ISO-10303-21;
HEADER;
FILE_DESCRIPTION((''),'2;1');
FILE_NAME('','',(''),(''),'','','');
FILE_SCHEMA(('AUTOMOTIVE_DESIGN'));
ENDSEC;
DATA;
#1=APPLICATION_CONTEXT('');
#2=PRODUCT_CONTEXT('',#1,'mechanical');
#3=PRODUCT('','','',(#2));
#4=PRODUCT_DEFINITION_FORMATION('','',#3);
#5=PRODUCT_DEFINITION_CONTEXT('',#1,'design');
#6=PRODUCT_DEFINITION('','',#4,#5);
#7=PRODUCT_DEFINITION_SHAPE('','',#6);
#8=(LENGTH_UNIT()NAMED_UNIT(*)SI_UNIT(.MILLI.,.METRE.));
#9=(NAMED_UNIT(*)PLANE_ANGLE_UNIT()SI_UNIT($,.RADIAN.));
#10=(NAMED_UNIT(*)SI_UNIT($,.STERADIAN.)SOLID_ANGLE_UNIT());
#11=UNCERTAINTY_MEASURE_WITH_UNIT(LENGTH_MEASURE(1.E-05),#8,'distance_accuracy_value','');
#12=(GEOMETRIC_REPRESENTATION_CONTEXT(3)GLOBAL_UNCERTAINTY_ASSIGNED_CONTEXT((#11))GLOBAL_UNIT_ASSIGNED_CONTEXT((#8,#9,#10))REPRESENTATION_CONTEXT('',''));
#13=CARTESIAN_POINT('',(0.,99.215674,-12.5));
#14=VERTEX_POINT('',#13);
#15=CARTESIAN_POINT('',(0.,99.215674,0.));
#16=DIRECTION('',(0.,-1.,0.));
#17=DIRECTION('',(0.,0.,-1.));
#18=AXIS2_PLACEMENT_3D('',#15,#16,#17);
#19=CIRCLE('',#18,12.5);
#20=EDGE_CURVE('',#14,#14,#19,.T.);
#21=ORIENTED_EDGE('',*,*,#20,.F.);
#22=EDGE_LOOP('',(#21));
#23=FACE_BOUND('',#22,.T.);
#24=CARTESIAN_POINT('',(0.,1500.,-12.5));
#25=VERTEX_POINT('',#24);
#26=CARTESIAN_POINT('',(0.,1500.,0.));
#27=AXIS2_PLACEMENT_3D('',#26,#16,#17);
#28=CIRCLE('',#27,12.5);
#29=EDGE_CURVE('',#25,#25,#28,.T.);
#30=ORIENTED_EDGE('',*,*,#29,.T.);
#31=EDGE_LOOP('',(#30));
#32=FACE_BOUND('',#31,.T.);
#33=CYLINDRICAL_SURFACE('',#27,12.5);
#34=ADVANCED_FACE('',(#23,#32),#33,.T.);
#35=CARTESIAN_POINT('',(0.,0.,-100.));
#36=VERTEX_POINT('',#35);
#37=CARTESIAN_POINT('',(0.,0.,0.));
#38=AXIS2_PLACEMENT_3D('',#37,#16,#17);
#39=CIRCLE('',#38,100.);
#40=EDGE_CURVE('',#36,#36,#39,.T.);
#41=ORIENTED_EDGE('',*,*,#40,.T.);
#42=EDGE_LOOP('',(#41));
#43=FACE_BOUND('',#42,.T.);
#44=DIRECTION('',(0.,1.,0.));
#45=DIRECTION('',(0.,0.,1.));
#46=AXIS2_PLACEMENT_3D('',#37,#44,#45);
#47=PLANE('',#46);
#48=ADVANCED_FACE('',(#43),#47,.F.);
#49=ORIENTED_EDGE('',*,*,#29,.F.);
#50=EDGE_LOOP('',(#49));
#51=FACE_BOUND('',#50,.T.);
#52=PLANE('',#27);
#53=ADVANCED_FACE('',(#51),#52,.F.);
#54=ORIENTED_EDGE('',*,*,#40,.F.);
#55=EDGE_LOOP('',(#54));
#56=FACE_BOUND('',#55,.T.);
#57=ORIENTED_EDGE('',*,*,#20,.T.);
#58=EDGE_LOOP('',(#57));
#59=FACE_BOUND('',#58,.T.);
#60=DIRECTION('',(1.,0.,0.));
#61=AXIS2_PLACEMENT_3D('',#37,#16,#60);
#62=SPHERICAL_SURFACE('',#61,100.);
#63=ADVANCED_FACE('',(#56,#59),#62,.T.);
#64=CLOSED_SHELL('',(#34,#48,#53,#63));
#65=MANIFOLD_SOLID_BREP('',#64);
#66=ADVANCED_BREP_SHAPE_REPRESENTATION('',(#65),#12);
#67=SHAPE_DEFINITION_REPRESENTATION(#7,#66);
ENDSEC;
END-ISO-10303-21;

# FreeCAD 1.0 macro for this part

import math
import FreeCAD as App
import Part
import Sketcher
from FreeCAD import Vector
Q = App.Units.Quantity

doc = App.newDocument("Part")
body = doc.addObject("PartDesign::Body", "Body")

sketch1 = body.newObject("Sketcher::SketchObject", "Sketch")
sketch1.AttachmentSupport = (doc.getObject("XY_Plane"), [""])
sketch1.MapMode = "FlatFace"
sketch1.addGeometry([
    Part.LineSegment(Vector(-100, 0, 0), Vector(0, 0, 0)),
    Part.LineSegment(Vector(0, 0, 0), Vector(0, 100, 0)),
    Part.ArcOfCircle(Part.Circle(Vector(0, 0, 0), Vector(0, 0, 1), 100), math.radians(90), math.radians(180)),
], False)
sketch1.addConstraint([
    Sketcher.Constraint("Coincident", 0, 2, 1, 1),
    Sketcher.Constraint("Coincident", 1, 2, 2, 1),
    Sketcher.Constraint("Coincident", 2, 2, 0, 1),
    Sketcher.Constraint("Horizontal", 0),
    Sketcher.Constraint("Vertical", 1),
    Sketcher.Constraint("Coincident", 2, 3, -1, 1),
    Sketcher.Constraint("Coincident", 0, 2, -1, 1),
    Sketcher.Constraint("Radius", 2, Q("100 mm")),
])
revolution = body.newObject("PartDesign::Revolution", "Revolution")
revolution.Profile = sketch1
revolution.ReferenceAxis = (sketch1, ["V_Axis"])
revolution.Angle = 360

sketch2 = body.newObject("Sketcher::SketchObject", "Sketch001")
sketch2.AttachmentSupport = (doc.getObject("XZ_Plane"), [""])
sketch2.MapMode = "FlatFace"
sketch2.addGeometry(Part.Circle(Vector(0, 0, 0), Vector(0, 0, 1), 12.5), False)
sketch2.addConstraint([
    Sketcher.Constraint("Coincident", 0, 3, -1, 1),
    Sketcher.Constraint("Diameter", 0, Q("25 mm")),
])
pad1 = body.newObject("PartDesign::Pad", "Pad")
pad1.Profile = sketch2
pad1.Length = 1500
pad1.Reversed = True

doc.recompute()
